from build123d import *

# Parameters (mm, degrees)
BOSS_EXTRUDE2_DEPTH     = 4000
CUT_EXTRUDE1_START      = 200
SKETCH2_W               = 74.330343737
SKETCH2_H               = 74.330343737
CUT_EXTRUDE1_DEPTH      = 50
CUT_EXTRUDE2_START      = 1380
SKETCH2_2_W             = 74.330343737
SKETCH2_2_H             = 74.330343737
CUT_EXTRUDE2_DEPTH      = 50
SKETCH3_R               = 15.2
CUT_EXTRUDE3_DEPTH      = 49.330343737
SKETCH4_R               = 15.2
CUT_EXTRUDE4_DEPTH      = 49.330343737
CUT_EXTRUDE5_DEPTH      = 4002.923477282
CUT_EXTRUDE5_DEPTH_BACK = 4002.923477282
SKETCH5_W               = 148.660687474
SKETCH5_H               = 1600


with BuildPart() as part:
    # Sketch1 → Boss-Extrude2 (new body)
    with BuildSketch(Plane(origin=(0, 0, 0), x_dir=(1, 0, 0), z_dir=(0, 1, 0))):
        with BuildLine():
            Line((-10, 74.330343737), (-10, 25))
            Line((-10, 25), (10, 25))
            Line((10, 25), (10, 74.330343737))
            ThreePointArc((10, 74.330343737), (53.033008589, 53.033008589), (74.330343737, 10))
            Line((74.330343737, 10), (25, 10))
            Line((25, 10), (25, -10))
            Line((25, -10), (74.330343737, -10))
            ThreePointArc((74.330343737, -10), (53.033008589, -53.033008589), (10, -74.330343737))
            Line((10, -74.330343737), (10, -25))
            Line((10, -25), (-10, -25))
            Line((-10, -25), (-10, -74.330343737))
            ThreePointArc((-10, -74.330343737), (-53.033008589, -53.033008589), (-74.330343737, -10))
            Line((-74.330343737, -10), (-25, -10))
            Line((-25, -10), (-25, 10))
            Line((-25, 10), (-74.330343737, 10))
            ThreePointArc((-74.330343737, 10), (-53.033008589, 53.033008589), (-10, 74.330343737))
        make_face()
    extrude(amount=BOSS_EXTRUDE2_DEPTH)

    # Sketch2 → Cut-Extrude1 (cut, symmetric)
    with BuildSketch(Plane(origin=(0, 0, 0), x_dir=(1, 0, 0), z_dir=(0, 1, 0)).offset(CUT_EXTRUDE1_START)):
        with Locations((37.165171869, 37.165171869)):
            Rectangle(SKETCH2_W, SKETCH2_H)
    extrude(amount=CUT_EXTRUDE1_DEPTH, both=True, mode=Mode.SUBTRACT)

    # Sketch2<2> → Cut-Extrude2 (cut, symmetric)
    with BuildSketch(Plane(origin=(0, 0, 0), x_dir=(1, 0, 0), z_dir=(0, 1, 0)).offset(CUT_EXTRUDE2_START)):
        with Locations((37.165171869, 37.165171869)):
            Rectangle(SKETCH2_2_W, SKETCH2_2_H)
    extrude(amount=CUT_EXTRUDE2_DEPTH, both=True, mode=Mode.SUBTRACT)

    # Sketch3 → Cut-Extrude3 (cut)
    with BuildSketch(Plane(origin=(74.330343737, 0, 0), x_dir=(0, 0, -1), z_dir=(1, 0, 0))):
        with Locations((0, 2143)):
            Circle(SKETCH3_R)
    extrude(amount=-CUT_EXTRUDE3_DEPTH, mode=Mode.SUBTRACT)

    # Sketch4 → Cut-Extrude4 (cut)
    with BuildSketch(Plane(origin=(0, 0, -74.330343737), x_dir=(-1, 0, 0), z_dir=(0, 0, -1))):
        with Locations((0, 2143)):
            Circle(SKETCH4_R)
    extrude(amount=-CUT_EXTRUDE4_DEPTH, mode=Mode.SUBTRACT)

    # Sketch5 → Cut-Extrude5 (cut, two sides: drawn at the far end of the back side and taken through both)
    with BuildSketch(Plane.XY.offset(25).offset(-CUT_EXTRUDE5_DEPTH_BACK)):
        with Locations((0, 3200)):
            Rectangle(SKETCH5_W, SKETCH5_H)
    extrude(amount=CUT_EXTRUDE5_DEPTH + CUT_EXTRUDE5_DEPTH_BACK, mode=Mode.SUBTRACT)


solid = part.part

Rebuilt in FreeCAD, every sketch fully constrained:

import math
import FreeCAD as App
import Part
import Sketcher
from FreeCAD import Vector

doc = App.newDocument("Part")
body = doc.addObject("PartDesign::Body", "Body")

# Sketch on XZ plane
sketch1 = body.newObject("Sketcher::SketchObject", "Sketch")
sketch1.AttachmentSupport = (doc.getObject("XZ_Plane"), [""])
sketch1.MapMode = "FlatFace"
sketch1.addGeometry(Part.LineSegment(Vector(-10, -25, 0), Vector(-10, -74, 0)), False)
sketch1.addGeometry(Part.ArcOfCircle(Part.Circle(Vector(0, 0, 0), Vector(0, 0, 1), 75), math.radians(-172), math.radians(-98)), False)
sketch1.addGeometry(Part.LineSegment(Vector(-74, -10, 0), Vector(-25, -10, 0)), False)
sketch1.addGeometry(Part.LineSegment(Vector(-25, -10, 0), Vector(-25, 10, 0)), False)
sketch1.addGeometry(Part.LineSegment(Vector(-25, 10, 0), Vector(-74, 10, 0)), False)
sketch1.addGeometry(Part.ArcOfCircle(Part.Circle(Vector(0, 0, 0), Vector(0, 0, 1), 75), math.radians(98), math.radians(172)), False)
sketch1.addGeometry(Part.LineSegment(Vector(-10, 74, 0), Vector(-10, 25, 0)), False)
sketch1.addGeometry(Part.LineSegment(Vector(-10, 25, 0), Vector(10, 25, 0)), False)
sketch1.addGeometry(Part.LineSegment(Vector(10, 25, 0), Vector(10, 74, 0)), False)
sketch1.addGeometry(Part.ArcOfCircle(Part.Circle(Vector(0, 0, 0), Vector(0, 0, 1), 75), math.radians(8), math.radians(82)), False)
sketch1.addGeometry(Part.LineSegment(Vector(74, 10, 0), Vector(25, 10, 0)), False)
sketch1.addGeometry(Part.LineSegment(Vector(25, 10, 0), Vector(25, -10, 0)), False)
sketch1.addGeometry(Part.LineSegment(Vector(25, -10, 0), Vector(74, -10, 0)), False)
sketch1.addGeometry(Part.ArcOfCircle(Part.Circle(Vector(0, 0, 0), Vector(0, 0, 1), 75), math.radians(-82), math.radians(-8)), False)
sketch1.addGeometry(Part.LineSegment(Vector(10, -74, 0), Vector(10, -25, 0)), False)
sketch1.addGeometry(Part.LineSegment(Vector(10, -25, 0), Vector(-10, -25, 0)), False)
sketch1.addConstraint(Sketcher.Constraint("Coincident", 0, 2, 1, 2))
sketch1.addConstraint(Sketcher.Constraint("Coincident", 1, 1, 2, 1))
sketch1.addConstraint(Sketcher.Constraint("Coincident", 2, 2, 3, 1))
sketch1.addConstraint(Sketcher.Constraint("Coincident", 3, 2, 4, 1))
sketch1.addConstraint(Sketcher.Constraint("Coincident", 4, 2, 5, 2))
sketch1.addConstraint(Sketcher.Constraint("Coincident", 5, 1, 6, 1))
sketch1.addConstraint(Sketcher.Constraint("Coincident", 6, 2, 7, 1))
sketch1.addConstraint(Sketcher.Constraint("Coincident", 7, 2, 8, 1))
sketch1.addConstraint(Sketcher.Constraint("Coincident", 8, 2, 9, 2))
sketch1.addConstraint(Sketcher.Constraint("Coincident", 9, 1, 10, 1))
sketch1.addConstraint(Sketcher.Constraint("Coincident", 10, 2, 11, 1))
sketch1.addConstraint(Sketcher.Constraint("Coincident", 11, 2, 12, 1))
sketch1.addConstraint(Sketcher.Constraint("Coincident", 12, 2, 13, 2))
sketch1.addConstraint(Sketcher.Constraint("Coincident", 13, 1, 14, 1))
sketch1.addConstraint(Sketcher.Constraint("Coincident", 14, 2, 15, 1))
sketch1.addConstraint(Sketcher.Constraint("Coincident", 15, 2, 0, 1))
sketch1.addConstraint(Sketcher.Constraint("Vertical", 0))
sketch1.addConstraint(Sketcher.Constraint("Horizontal", 2))
sketch1.addConstraint(Sketcher.Constraint("Vertical", 3))
sketch1.addConstraint(Sketcher.Constraint("Horizontal", 4))
sketch1.addConstraint(Sketcher.Constraint("Vertical", 6))
sketch1.addConstraint(Sketcher.Constraint("Horizontal", 7))
sketch1.addConstraint(Sketcher.Constraint("Vertical", 8))
sketch1.addConstraint(Sketcher.Constraint("Horizontal", 10))
sketch1.addConstraint(Sketcher.Constraint("Vertical", 11))
sketch1.addConstraint(Sketcher.Constraint("Horizontal", 12))
sketch1.addConstraint(Sketcher.Constraint("Vertical", 14))
sketch1.addConstraint(Sketcher.Constraint("Horizontal", 15))
sketch1.addConstraint(Sketcher.Constraint("Coincident", 1, 3, -1, 1))
sketch1.addConstraint(Sketcher.Constraint("Coincident", 5, 3, -1, 1))
sketch1.addConstraint(Sketcher.Constraint("Coincident", 9, 3, -1, 1))
sketch1.addConstraint(Sketcher.Constraint("Coincident", 13, 3, -1, 1))
sketch1.addConstraint(Sketcher.Constraint("Equal", 1, 5))
sketch1.addConstraint(Sketcher.Constraint("Equal", 5, 9))
sketch1.addConstraint(Sketcher.Constraint("Equal", 9, 13))
sketch1.addConstraint(Sketcher.Constraint("Symmetric", 2, 2, 10, 2, -1, 1))
sketch1.addConstraint(Sketcher.Constraint("Symmetric", 6, 2, 14, 2, -1, 1))
sketch1.addConstraint(Sketcher.Constraint("Horizontal", 5, 1, 8, 2))
sketch1.addConstraint(Sketcher.Constraint("Horizontal", 4, 2, 9, 1))
sketch1.addConstraint(Sketcher.Constraint("Horizontal", 2, 2, 11, 2))
sketch1.addConstraint(Sketcher.Constraint("Horizontal", 0, 2, 13, 1))
sketch1.addConstraint(Sketcher.Constraint("Equal", 12, 0))
sketch1.addConstraint(Sketcher.Constraint("Equal", 15, 3))
sketch1.addConstraint(Sketcher.Constraint("Radius", 1, 75.0))
sketch1.addConstraint(Sketcher.Constraint("DistanceX", 7, 1, 7, 2, 20.0))
sketch1.addConstraint(Sketcher.Constraint("DistanceX", 2, 2, -1, 1, 25.0))
pad1 = body.newObject("PartDesign::Pad", "Pad")
pad1.Profile = sketch1
pad1.Length = 4000
pad1.Reversed = True

# Sketch on XZ plane
sketch2 = body.newObject("Sketcher::SketchObject", "Sketch001")
sketch2.AttachmentSupport = (doc.getObject("XZ_Plane"), [""])
sketch2.MapMode = "FlatFace"
sketch2.AttachmentOffset = App.Placement(Vector(0, 0, -200), App.Rotation())
sketch2.addGeometry(Part.LineSegment(Vector(0, -74, 0), Vector(0, 0, 0)), False)
sketch2.addGeometry(Part.LineSegment(Vector(0, 0, 0), Vector(74, 0, 0)), False)
sketch2.addGeometry(Part.LineSegment(Vector(74, 0, 0), Vector(74, -74, 0)), False)
sketch2.addGeometry(Part.LineSegment(Vector(74, -74, 0), Vector(0, -74, 0)), False)
sketch2.addConstraint(Sketcher.Constraint("Coincident", 0, 2, 1, 1))
sketch2.addConstraint(Sketcher.Constraint("Coincident", 1, 2, 2, 1))
sketch2.addConstraint(Sketcher.Constraint("Coincident", 2, 2, 3, 1))
sketch2.addConstraint(Sketcher.Constraint("Coincident", 3, 2, 0, 1))
sketch2.addConstraint(Sketcher.Constraint("Vertical", 0))
sketch2.addConstraint(Sketcher.Constraint("Horizontal", 1))
sketch2.addConstraint(Sketcher.Constraint("Vertical", 2))
sketch2.addConstraint(Sketcher.Constraint("Horizontal", 3))
sketch2.addConstraint(Sketcher.Constraint("Coincident", 0, 2, -1, 1))
sketch2.addConstraint(Sketcher.Constraint("Equal", 3, 0))
sketch2.addConstraint(Sketcher.Constraint("DistanceX", 1, 1, 1, 2, 74.330344))
pocket1 = body.newObject("PartDesign::Pocket", "Pocket")
pocket1.Profile = sketch2
pocket1.Length = 100
pocket1.Midplane = True

# Sketch on XZ plane
sketch3 = body.newObject("Sketcher::SketchObject", "Sketch002")
sketch3.AttachmentSupport = (doc.getObject("XZ_Plane"), [""])
sketch3.MapMode = "FlatFace"
sketch3.AttachmentOffset = App.Placement(Vector(0, 0, -1380), App.Rotation())
sketch3.addGeometry(Part.LineSegment(Vector(0, -74, 0), Vector(0, 0, 0)), False)
sketch3.addGeometry(Part.LineSegment(Vector(0, 0, 0), Vector(74, 0, 0)), False)
sketch3.addGeometry(Part.LineSegment(Vector(74, 0, 0), Vector(74, -74, 0)), False)
sketch3.addGeometry(Part.LineSegment(Vector(74, -74, 0), Vector(0, -74, 0)), False)
sketch3.addConstraint(Sketcher.Constraint("Coincident", 0, 2, 1, 1))
sketch3.addConstraint(Sketcher.Constraint("Coincident", 1, 2, 2, 1))
sketch3.addConstraint(Sketcher.Constraint("Coincident", 2, 2, 3, 1))
sketch3.addConstraint(Sketcher.Constraint("Coincident", 3, 2, 0, 1))
sketch3.addConstraint(Sketcher.Constraint("Vertical", 0))
sketch3.addConstraint(Sketcher.Constraint("Horizontal", 1))
sketch3.addConstraint(Sketcher.Constraint("Vertical", 2))
sketch3.addConstraint(Sketcher.Constraint("Horizontal", 3))
sketch3.addConstraint(Sketcher.Constraint("Coincident", 0, 2, -1, 1))
sketch3.addConstraint(Sketcher.Constraint("Equal", 3, 0))
sketch3.addConstraint(Sketcher.Constraint("DistanceX", 1, 1, 1, 2, 74.330344))
pocket2 = body.newObject("PartDesign::Pocket", "Pocket001")
pocket2.Profile = sketch3
pocket2.Length = 100
pocket2.Midplane = True

# Sketch on YZ plane
sketch4 = body.newObject("Sketcher::SketchObject", "Sketch003")
sketch4.AttachmentSupport = (doc.getObject("YZ_Plane"), [""])
sketch4.MapMode = "FlatFace"
sketch4.AttachmentOffset = App.Placement(Vector(0, 0, 74.330344), App.Rotation())
sketch4.addGeometry(Part.Circle(Vector(2143, 0, 0), Vector(0, 0, 1), 15), False)
sketch4.addConstraint(Sketcher.Constraint("PointOnObject", 0, 3, -1))
sketch4.addConstraint(Sketcher.Constraint("Diameter", 0, 30.4))
sketch4.addConstraint(Sketcher.Constraint("DistanceX", -1, 1, 0, 3, 2143.0))
pocket3 = body.newObject("PartDesign::Pocket", "Pocket002")
pocket3.Profile = sketch4
pocket3.Length = 49.330344

# Sketch on XY plane
sketch5 = body.newObject("Sketcher::SketchObject", "Sketch004")
sketch5.AttachmentSupport = (doc.getObject("XY_Plane"), [""])
sketch5.MapMode = "FlatFace"
sketch5.AttachmentOffset = App.Placement(Vector(0, 0, -74.330344), App.Rotation())
sketch5.addGeometry(Part.Circle(Vector(0, 2143, 0), Vector(0, 0, 1), 15), False)
sketch5.addConstraint(Sketcher.Constraint("PointOnObject", 0, 3, -2))
sketch5.addConstraint(Sketcher.Constraint("Diameter", 0, 30.4))
sketch5.addConstraint(Sketcher.Constraint("DistanceY", -1, 1, 0, 3, 2143.0))
pocket4 = body.newObject("PartDesign::Pocket", "Pocket003")
pocket4.Profile = sketch5
pocket4.Length = 49.330344
pocket4.Reversed = True

# Sketch on XY plane
sketch6 = body.newObject("Sketcher::SketchObject", "Sketch005")
sketch6.AttachmentSupport = (doc.getObject("XY_Plane"), [""])
sketch6.MapMode = "FlatFace"
sketch6.AttachmentOffset = App.Placement(Vector(0, 0, 25), App.Rotation())
sketch6.addGeometry(Part.LineSegment(Vector(-74, 4000, 0), Vector(-74, 2400, 0)), False)
sketch6.addGeometry(Part.LineSegment(Vector(-74, 2400, 0), Vector(74, 2400, 0)), False)
sketch6.addGeometry(Part.LineSegment(Vector(74, 2400, 0), Vector(74, 4000, 0)), False)
sketch6.addGeometry(Part.LineSegment(Vector(74, 4000, 0), Vector(-74, 4000, 0)), False)
sketch6.addConstraint(Sketcher.Constraint("Coincident", 0, 2, 1, 1))
sketch6.addConstraint(Sketcher.Constraint("Coincident", 1, 2, 2, 1))
sketch6.addConstraint(Sketcher.Constraint("Coincident", 2, 2, 3, 1))
sketch6.addConstraint(Sketcher.Constraint("Coincident", 3, 2, 0, 1))
sketch6.addConstraint(Sketcher.Constraint("Vertical", 0))
sketch6.addConstraint(Sketcher.Constraint("Horizontal", 1))
sketch6.addConstraint(Sketcher.Constraint("Vertical", 2))
sketch6.addConstraint(Sketcher.Constraint("Horizontal", 3))
sketch6.addConstraint(Sketcher.Constraint("DistanceY", 0, 2, 0, 1, 1600.0))
sketch6.addConstraint(Sketcher.Constraint("DistanceY", -1, 1, 0, 2, 2400.0))
sketch6.addConstraint(Sketcher.Constraint("DistanceX", 1, 1, 1, 2, 148.660687))
sketch6.addConstraint(Sketcher.Constraint("DistanceX", 0, 2, -1, 1, 74.330344))
pocket5 = body.newObject("PartDesign::Pocket", "Pocket004")
pocket5.Profile = sketch6
pocket5.Type = "ThroughAll"
pocket5.Midplane = True

doc.recompute()
